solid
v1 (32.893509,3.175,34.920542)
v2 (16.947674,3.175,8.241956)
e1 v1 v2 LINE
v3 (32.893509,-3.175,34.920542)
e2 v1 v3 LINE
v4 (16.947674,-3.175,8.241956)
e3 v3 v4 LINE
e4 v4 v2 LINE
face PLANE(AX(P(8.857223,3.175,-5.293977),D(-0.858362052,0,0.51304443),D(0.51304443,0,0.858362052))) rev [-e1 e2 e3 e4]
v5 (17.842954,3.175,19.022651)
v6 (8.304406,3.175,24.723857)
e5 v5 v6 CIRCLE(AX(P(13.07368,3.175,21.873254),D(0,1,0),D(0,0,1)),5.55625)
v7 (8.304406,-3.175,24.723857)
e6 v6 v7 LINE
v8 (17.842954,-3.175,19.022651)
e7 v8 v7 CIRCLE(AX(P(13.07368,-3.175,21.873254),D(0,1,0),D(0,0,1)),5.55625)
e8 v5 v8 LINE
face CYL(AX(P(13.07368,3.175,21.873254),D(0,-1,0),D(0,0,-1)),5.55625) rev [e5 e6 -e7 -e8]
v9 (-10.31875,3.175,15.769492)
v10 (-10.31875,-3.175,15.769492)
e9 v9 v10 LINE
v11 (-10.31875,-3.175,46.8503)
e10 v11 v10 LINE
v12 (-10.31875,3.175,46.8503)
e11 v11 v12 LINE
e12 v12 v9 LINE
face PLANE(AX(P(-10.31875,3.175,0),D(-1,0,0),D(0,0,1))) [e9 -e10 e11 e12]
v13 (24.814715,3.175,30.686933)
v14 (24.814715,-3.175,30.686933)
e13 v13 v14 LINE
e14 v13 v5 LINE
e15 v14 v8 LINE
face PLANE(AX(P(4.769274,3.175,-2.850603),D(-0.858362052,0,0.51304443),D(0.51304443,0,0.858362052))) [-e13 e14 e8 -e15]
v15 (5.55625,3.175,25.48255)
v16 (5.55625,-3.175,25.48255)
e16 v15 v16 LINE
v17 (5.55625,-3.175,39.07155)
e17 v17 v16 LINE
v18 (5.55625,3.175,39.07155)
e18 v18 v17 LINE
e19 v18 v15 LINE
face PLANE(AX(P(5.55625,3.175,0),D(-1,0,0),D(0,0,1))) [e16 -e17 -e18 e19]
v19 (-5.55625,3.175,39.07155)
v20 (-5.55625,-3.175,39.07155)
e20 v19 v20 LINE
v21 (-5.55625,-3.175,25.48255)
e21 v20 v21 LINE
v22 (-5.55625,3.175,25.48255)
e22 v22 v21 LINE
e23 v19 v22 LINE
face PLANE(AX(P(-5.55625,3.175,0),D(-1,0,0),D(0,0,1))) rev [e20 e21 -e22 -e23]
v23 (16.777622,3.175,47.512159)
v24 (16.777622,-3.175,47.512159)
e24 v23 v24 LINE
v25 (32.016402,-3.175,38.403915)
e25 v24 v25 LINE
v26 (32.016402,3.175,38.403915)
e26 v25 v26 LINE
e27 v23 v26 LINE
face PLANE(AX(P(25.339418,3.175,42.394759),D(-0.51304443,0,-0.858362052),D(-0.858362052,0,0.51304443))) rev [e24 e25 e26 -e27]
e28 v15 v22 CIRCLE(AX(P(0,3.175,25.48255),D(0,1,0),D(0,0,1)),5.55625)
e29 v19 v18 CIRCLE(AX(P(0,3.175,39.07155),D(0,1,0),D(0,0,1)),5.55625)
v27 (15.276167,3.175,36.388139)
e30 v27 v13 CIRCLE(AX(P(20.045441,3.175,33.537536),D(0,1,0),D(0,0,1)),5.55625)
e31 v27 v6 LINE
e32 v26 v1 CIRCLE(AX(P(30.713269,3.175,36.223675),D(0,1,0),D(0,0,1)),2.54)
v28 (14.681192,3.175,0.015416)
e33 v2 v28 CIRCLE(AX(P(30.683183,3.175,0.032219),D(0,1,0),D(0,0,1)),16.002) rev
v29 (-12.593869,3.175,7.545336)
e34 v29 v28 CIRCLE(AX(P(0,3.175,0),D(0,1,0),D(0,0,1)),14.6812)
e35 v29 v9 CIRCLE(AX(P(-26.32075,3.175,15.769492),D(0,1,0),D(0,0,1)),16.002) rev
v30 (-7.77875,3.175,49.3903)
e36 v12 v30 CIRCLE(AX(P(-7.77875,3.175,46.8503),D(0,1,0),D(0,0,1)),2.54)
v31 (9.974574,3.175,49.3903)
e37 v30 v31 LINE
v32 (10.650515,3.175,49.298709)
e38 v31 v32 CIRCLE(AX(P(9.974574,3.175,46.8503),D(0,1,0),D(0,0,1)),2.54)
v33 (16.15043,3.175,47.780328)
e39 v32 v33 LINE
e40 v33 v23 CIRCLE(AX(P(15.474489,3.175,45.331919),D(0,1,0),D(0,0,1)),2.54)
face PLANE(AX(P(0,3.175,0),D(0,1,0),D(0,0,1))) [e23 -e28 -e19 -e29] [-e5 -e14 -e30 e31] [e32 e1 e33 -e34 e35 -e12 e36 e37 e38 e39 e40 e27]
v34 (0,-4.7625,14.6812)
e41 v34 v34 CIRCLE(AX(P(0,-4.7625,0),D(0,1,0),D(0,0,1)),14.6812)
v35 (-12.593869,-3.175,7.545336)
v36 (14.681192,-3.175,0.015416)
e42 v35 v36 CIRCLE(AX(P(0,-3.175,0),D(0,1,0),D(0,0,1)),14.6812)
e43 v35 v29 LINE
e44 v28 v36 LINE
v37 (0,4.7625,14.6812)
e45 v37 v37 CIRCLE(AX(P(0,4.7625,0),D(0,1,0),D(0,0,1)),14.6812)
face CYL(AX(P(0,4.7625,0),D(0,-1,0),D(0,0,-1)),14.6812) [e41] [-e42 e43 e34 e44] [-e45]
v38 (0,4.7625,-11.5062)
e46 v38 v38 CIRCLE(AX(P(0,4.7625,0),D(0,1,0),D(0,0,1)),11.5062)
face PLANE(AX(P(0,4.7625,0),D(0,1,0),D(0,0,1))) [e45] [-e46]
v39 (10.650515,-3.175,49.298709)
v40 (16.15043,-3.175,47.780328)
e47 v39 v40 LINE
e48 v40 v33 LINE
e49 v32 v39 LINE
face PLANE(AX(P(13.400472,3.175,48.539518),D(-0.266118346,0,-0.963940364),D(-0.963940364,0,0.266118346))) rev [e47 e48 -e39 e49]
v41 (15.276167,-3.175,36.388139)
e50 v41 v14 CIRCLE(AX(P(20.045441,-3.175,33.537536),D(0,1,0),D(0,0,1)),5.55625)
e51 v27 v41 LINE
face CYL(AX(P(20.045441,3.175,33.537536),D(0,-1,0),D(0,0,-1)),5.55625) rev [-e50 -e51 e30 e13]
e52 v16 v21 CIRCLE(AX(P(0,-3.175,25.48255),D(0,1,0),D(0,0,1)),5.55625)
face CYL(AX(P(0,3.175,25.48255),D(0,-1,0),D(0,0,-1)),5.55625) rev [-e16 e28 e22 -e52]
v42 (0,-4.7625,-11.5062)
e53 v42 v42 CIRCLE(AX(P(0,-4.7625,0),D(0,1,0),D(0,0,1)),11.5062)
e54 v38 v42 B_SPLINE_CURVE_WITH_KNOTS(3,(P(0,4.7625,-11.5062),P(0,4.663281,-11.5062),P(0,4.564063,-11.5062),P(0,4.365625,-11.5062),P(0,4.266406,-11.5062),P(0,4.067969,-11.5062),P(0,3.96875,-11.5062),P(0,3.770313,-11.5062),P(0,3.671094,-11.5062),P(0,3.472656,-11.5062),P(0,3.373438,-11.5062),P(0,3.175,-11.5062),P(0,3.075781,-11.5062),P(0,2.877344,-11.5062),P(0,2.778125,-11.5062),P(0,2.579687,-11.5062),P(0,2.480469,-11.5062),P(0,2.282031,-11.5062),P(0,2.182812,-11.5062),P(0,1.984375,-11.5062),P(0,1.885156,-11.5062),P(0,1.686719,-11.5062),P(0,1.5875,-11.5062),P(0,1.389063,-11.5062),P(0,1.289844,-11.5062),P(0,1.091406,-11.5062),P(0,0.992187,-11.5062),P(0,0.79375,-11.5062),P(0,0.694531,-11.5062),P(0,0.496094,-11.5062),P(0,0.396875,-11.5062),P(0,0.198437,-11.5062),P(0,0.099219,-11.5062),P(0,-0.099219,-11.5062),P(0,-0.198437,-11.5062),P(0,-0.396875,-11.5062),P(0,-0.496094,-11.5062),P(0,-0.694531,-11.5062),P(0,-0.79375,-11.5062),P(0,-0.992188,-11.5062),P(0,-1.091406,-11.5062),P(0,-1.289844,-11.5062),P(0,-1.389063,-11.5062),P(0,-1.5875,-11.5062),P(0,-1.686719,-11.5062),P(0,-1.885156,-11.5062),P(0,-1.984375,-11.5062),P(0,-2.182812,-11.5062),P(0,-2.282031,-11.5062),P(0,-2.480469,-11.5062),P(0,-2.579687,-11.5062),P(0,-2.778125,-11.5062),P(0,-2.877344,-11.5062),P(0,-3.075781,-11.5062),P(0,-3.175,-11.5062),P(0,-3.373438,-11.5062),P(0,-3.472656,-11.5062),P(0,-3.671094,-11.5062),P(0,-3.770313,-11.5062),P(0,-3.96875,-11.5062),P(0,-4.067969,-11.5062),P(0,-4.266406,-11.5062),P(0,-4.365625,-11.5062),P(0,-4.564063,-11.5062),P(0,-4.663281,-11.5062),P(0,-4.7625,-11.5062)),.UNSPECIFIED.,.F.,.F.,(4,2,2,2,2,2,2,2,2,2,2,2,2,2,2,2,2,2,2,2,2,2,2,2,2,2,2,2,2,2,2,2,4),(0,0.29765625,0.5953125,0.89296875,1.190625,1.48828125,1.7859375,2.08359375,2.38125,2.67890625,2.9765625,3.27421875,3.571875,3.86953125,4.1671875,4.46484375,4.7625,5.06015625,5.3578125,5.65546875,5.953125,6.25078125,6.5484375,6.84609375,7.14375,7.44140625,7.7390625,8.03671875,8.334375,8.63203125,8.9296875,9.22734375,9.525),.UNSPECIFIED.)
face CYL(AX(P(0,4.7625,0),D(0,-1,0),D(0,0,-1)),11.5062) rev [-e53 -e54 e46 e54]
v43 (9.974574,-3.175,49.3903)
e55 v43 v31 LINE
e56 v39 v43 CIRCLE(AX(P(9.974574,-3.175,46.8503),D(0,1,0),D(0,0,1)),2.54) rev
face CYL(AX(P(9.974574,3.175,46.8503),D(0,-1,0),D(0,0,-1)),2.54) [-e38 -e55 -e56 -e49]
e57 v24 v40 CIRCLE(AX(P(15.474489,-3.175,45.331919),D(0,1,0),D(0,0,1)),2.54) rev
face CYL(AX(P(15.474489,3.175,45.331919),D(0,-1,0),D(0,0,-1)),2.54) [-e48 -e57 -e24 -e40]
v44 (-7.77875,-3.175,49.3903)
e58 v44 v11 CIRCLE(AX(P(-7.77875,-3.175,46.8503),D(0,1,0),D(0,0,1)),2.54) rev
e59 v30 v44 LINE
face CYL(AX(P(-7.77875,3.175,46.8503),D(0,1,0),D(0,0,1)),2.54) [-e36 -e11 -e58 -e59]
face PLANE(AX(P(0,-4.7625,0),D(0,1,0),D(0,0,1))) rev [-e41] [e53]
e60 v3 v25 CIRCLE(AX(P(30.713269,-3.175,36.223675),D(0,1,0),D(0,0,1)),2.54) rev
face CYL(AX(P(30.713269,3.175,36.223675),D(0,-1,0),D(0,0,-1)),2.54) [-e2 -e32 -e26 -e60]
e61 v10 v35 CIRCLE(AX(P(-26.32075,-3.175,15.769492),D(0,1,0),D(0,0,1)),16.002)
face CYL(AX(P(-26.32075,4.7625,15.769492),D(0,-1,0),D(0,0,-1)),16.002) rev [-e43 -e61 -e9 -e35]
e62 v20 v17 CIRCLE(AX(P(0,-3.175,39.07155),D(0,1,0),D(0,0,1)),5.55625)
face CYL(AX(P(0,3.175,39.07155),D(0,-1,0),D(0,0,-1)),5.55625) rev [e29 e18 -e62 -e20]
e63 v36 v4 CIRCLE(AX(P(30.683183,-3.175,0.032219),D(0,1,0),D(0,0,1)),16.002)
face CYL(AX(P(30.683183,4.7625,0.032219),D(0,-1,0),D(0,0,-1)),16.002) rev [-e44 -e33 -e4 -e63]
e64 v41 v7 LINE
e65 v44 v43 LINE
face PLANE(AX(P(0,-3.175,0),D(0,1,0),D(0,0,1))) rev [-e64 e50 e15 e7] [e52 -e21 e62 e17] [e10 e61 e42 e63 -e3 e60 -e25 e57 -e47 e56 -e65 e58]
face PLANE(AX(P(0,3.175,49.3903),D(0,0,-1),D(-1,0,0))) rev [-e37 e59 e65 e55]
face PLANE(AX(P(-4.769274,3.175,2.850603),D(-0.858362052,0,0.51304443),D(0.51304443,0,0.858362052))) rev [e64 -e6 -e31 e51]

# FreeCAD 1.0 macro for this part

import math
import FreeCAD as App
import Part
import Sketcher
Q = App.Units.Quantity


def edges_at(feature, points):
    """Names of the edges that pass closest to the given points."""
    edges = feature.Shape.Edges
    near = lambda p: min(range(len(edges)), key=lambda i: edges[i].distToShape(Part.Vertex(*p))[0])
    return sorted({f"Edge{near(p) + 1}" for p in points})

doc = App.newDocument("Part")
body = doc.addObject("PartDesign::Body", "Body")

sketch1 = body.newObject("Sketcher::SketchObject", "Sketch")
sketch1.AttachmentSupport = (doc.getObject("XZ_Plane"), [""])
sketch1.MapMode = "FlatFace"
sketch1.addGeometry(Part.Circle(App.Vector(0, 0, 0), App.Vector(0, 0, 1), 14.6812), False)
sketch1.addGeometry(Part.Circle(App.Vector(0, 0, 0), App.Vector(0, 0, 1), 11.5062), False)
sketch1.addConstraint(Sketcher.Constraint("Coincident", 0, 3, -1, 1))
sketch1.addConstraint(Sketcher.Constraint("Coincident", 1, 3, -1, 1))
sketch1.addConstraint(Sketcher.Constraint("Diameter", 0, Q("1.156 in")))
sketch1.addConstraint(Sketcher.Constraint("Diameter", 1, Q("0.906 in")))
pad1 = body.newObject("PartDesign::Pad", "Pad")
pad1.Profile = sketch1
pad1.Length = Q("0.375 in")
pad1.Midplane = True

sketch2 = body.newObject("Sketcher::SketchObject", "Sketch001")
sketch2.AttachmentSupport = (doc.getObject("XZ_Plane"), [""])
sketch2.MapMode = "FlatFace"
sketch2.addGeometry(Part.LineSegment(App.Vector(-10.31875, 10.443229, 0), App.Vector(-10.31875, 49.3903, 0)), False)
sketch2.addGeometry(Part.LineSegment(App.Vector(-10.31875, 49.3903, 0), App.Vector(10.31875, 49.3903, 0)), False)
sketch2.addGeometry(Part.LineSegment(App.Vector(10.31875, 49.3903, 0), App.Vector(16.482195, 47.688736, 0)), False)
sketch2.addGeometry(Part.LineSegment(App.Vector(16.482195, 47.688736, 0), App.Vector(34.196642, 37.100782, 0)), False)
sketch2.addGeometry(Part.LineSegment(App.Vector(34.196642, 37.100782, 0), App.Vector(14.215064, 3.670094, 0)), False)
sketch2.addGeometry(Part.ArcOfCircle(Part.Circle(App.Vector(0, 0, 0), App.Vector(0, 0, 1), 14.6812), math.radians(14.476683), math.radians(134.656486)), False)
sketch2.addGeometry(Part.LineSegment(App.Vector(5.55625, 25.48255, 0), App.Vector(5.55625, 39.07155, 0)), False)
sketch2.addGeometry(Part.ArcOfCircle(Part.Circle(App.Vector(0, 39.07155, 0), App.Vector(0, 0, 1), 5.55625), math.radians(0), math.radians(180)), False)
sketch2.addGeometry(Part.LineSegment(App.Vector(-5.55625, 39.07155, 0), App.Vector(-5.55625, 25.48255, 0)), False)
sketch2.addGeometry(Part.ArcOfCircle(Part.Circle(App.Vector(0, 25.48255, 0), App.Vector(0, 0, 1), 5.55625), math.radians(180), math.radians(360)), False)
sketch2.addGeometry(Part.LineSegment(App.Vector(17.842954, 19.022651, 0), App.Vector(24.814715, 30.686933, 0)), False)
sketch2.addGeometry(Part.ArcOfCircle(Part.Circle(App.Vector(20.045441, 33.537536, 0), App.Vector(0, 0, 1), 5.55625), math.radians(-30.866831), math.radians(149.133169)), False)
sketch2.addGeometry(Part.LineSegment(App.Vector(15.276167, 36.388139, 0), App.Vector(8.304406, 24.723857, 0)), False)
sketch2.addGeometry(Part.ArcOfCircle(Part.Circle(App.Vector(13.07368, 21.873254, 0), App.Vector(0, 0, 1), 5.55625), math.radians(149.133169), math.radians(329.133169)), False)
sketch2.addConstraint(Sketcher.Constraint("Coincident", 0, 2, 1, 1))
sketch2.addConstraint(Sketcher.Constraint("Coincident", 1, 2, 2, 1))
sketch2.addConstraint(Sketcher.Constraint("Coincident", 2, 2, 3, 1))
sketch2.addConstraint(Sketcher.Constraint("Coincident", 3, 2, 4, 1))
sketch2.addConstraint(Sketcher.Constraint("Coincident", 4, 2, 5, 1))
sketch2.addConstraint(Sketcher.Constraint("Coincident", 5, 2, 0, 1))
sketch2.addConstraint(Sketcher.Constraint("Tangent", 6, 2, 7, 1))
sketch2.addConstraint(Sketcher.Constraint("Tangent", 7, 2, 8, 1))
sketch2.addConstraint(Sketcher.Constraint("Tangent", 8, 2, 9, 1))
sketch2.addConstraint(Sketcher.Constraint("Tangent", 9, 2, 6, 1))
sketch2.addConstraint(Sketcher.Constraint("Tangent", 10, 2, 11, 1))
sketch2.addConstraint(Sketcher.Constraint("Tangent", 11, 2, 12, 1))
sketch2.addConstraint(Sketcher.Constraint("Tangent", 12, 2, 13, 1))
sketch2.addConstraint(Sketcher.Constraint("Tangent", 13, 2, 10, 1))
sketch2.addConstraint(Sketcher.Constraint("Vertical", 0))
sketch2.addConstraint(Sketcher.Constraint("Horizontal", 1))
sketch2.addConstraint(Sketcher.Constraint("Vertical", 6))
sketch2.addConstraint(Sketcher.Constraint("Vertical", 8))
sketch2.addConstraint(Sketcher.Constraint("Coincident", 5, 3, -1, 1))
sketch2.addConstraint(Sketcher.Constraint("Equal", 9, 11))
sketch2.addConstraint(Sketcher.Constraint("Equal", 11, 13))
sketch2.addConstraint(Sketcher.Constraint("PointOnObject", 7, 3, -2))
sketch2.addConstraint(Sketcher.Constraint("Perpendicular", 3, 4))
sketch2.addConstraint(Sketcher.Constraint("Parallel", 4, 10))
sketch2.addConstraint(Sketcher.Constraint("Radius", 5, Q("0.578 in")))
sketch2.addConstraint(Sketcher.Constraint("Radius", 7, Q("0.21875 in")))
sketch2.addConstraint(Sketcher.Constraint("DistanceX", 1, 1, 1, 2, Q("0.8125 in")))
sketch2.addConstraint(Sketcher.Constraint("DistanceY", 6, 1, 6, 2, Q("0.535 in")))
sketch2.addConstraint(Sketcher.Constraint("Distance", 3, Q("0.8125 in")))
sketch2.addConstraint(Sketcher.Constraint("Distance", 10, Q("0.535 in")))
sketch2.addConstraint(Sketcher.Constraint("DistanceX", 0, 2, -1, 1, Q("0.40625 in")))
sketch2.addConstraint(Sketcher.Constraint("DistanceY", 7, 3, 0, 2, Q("0.40625 in")))
sketch2.addConstraint(Sketcher.Constraint("DistanceY", -1, 1, 0, 2, Q("1.9445 in")))
sketch2.addConstraint(Sketcher.Constraint("DistanceY", 11, 3, 2, 2, Q("14.151201 mm")))
sketch2.addConstraint(Sketcher.Constraint("DistanceX", 11, 3, 3, 2, Q("14.151201 mm")))
sketch2.addConstraint(Sketcher.Constraint("DistanceY", 13, 2, 9, 2, Q("6.459899 mm")))
sketch2.addConstraint(Sketcher.Constraint("Distance", 2, Q("6.394011 mm")))
sketch2.addConstraint(Sketcher.Constraint("Distance", 4, Q("38.947071 mm")))
pad2 = body.newObject("PartDesign::Pad", "Pad001")
pad2.Profile = sketch2
pad2.Length = Q("0.25 in")
pad2.Midplane = True
doc.recompute()

fillet = body.newObject("PartDesign::Fillet", "Fillet")
fillet.Base = (pad2, edges_at(pad2, [(14.215, 0, 3.67), (-10.319, 0, 10.443)]))
fillet.Radius = Q("0.63 in")
doc.recompute()

fillet2 = body.newObject("PartDesign::Fillet", "Fillet001")
fillet2.Base = (fillet, edges_at(fillet, [
    (-10.319, 0, 49.39),
    (10.319, 0, 49.39),
    (16.482, 0, 47.689),
    (34.197, 0, 37.101),
]))
fillet2.Radius = Q("0.1 in")

doc.recompute()
